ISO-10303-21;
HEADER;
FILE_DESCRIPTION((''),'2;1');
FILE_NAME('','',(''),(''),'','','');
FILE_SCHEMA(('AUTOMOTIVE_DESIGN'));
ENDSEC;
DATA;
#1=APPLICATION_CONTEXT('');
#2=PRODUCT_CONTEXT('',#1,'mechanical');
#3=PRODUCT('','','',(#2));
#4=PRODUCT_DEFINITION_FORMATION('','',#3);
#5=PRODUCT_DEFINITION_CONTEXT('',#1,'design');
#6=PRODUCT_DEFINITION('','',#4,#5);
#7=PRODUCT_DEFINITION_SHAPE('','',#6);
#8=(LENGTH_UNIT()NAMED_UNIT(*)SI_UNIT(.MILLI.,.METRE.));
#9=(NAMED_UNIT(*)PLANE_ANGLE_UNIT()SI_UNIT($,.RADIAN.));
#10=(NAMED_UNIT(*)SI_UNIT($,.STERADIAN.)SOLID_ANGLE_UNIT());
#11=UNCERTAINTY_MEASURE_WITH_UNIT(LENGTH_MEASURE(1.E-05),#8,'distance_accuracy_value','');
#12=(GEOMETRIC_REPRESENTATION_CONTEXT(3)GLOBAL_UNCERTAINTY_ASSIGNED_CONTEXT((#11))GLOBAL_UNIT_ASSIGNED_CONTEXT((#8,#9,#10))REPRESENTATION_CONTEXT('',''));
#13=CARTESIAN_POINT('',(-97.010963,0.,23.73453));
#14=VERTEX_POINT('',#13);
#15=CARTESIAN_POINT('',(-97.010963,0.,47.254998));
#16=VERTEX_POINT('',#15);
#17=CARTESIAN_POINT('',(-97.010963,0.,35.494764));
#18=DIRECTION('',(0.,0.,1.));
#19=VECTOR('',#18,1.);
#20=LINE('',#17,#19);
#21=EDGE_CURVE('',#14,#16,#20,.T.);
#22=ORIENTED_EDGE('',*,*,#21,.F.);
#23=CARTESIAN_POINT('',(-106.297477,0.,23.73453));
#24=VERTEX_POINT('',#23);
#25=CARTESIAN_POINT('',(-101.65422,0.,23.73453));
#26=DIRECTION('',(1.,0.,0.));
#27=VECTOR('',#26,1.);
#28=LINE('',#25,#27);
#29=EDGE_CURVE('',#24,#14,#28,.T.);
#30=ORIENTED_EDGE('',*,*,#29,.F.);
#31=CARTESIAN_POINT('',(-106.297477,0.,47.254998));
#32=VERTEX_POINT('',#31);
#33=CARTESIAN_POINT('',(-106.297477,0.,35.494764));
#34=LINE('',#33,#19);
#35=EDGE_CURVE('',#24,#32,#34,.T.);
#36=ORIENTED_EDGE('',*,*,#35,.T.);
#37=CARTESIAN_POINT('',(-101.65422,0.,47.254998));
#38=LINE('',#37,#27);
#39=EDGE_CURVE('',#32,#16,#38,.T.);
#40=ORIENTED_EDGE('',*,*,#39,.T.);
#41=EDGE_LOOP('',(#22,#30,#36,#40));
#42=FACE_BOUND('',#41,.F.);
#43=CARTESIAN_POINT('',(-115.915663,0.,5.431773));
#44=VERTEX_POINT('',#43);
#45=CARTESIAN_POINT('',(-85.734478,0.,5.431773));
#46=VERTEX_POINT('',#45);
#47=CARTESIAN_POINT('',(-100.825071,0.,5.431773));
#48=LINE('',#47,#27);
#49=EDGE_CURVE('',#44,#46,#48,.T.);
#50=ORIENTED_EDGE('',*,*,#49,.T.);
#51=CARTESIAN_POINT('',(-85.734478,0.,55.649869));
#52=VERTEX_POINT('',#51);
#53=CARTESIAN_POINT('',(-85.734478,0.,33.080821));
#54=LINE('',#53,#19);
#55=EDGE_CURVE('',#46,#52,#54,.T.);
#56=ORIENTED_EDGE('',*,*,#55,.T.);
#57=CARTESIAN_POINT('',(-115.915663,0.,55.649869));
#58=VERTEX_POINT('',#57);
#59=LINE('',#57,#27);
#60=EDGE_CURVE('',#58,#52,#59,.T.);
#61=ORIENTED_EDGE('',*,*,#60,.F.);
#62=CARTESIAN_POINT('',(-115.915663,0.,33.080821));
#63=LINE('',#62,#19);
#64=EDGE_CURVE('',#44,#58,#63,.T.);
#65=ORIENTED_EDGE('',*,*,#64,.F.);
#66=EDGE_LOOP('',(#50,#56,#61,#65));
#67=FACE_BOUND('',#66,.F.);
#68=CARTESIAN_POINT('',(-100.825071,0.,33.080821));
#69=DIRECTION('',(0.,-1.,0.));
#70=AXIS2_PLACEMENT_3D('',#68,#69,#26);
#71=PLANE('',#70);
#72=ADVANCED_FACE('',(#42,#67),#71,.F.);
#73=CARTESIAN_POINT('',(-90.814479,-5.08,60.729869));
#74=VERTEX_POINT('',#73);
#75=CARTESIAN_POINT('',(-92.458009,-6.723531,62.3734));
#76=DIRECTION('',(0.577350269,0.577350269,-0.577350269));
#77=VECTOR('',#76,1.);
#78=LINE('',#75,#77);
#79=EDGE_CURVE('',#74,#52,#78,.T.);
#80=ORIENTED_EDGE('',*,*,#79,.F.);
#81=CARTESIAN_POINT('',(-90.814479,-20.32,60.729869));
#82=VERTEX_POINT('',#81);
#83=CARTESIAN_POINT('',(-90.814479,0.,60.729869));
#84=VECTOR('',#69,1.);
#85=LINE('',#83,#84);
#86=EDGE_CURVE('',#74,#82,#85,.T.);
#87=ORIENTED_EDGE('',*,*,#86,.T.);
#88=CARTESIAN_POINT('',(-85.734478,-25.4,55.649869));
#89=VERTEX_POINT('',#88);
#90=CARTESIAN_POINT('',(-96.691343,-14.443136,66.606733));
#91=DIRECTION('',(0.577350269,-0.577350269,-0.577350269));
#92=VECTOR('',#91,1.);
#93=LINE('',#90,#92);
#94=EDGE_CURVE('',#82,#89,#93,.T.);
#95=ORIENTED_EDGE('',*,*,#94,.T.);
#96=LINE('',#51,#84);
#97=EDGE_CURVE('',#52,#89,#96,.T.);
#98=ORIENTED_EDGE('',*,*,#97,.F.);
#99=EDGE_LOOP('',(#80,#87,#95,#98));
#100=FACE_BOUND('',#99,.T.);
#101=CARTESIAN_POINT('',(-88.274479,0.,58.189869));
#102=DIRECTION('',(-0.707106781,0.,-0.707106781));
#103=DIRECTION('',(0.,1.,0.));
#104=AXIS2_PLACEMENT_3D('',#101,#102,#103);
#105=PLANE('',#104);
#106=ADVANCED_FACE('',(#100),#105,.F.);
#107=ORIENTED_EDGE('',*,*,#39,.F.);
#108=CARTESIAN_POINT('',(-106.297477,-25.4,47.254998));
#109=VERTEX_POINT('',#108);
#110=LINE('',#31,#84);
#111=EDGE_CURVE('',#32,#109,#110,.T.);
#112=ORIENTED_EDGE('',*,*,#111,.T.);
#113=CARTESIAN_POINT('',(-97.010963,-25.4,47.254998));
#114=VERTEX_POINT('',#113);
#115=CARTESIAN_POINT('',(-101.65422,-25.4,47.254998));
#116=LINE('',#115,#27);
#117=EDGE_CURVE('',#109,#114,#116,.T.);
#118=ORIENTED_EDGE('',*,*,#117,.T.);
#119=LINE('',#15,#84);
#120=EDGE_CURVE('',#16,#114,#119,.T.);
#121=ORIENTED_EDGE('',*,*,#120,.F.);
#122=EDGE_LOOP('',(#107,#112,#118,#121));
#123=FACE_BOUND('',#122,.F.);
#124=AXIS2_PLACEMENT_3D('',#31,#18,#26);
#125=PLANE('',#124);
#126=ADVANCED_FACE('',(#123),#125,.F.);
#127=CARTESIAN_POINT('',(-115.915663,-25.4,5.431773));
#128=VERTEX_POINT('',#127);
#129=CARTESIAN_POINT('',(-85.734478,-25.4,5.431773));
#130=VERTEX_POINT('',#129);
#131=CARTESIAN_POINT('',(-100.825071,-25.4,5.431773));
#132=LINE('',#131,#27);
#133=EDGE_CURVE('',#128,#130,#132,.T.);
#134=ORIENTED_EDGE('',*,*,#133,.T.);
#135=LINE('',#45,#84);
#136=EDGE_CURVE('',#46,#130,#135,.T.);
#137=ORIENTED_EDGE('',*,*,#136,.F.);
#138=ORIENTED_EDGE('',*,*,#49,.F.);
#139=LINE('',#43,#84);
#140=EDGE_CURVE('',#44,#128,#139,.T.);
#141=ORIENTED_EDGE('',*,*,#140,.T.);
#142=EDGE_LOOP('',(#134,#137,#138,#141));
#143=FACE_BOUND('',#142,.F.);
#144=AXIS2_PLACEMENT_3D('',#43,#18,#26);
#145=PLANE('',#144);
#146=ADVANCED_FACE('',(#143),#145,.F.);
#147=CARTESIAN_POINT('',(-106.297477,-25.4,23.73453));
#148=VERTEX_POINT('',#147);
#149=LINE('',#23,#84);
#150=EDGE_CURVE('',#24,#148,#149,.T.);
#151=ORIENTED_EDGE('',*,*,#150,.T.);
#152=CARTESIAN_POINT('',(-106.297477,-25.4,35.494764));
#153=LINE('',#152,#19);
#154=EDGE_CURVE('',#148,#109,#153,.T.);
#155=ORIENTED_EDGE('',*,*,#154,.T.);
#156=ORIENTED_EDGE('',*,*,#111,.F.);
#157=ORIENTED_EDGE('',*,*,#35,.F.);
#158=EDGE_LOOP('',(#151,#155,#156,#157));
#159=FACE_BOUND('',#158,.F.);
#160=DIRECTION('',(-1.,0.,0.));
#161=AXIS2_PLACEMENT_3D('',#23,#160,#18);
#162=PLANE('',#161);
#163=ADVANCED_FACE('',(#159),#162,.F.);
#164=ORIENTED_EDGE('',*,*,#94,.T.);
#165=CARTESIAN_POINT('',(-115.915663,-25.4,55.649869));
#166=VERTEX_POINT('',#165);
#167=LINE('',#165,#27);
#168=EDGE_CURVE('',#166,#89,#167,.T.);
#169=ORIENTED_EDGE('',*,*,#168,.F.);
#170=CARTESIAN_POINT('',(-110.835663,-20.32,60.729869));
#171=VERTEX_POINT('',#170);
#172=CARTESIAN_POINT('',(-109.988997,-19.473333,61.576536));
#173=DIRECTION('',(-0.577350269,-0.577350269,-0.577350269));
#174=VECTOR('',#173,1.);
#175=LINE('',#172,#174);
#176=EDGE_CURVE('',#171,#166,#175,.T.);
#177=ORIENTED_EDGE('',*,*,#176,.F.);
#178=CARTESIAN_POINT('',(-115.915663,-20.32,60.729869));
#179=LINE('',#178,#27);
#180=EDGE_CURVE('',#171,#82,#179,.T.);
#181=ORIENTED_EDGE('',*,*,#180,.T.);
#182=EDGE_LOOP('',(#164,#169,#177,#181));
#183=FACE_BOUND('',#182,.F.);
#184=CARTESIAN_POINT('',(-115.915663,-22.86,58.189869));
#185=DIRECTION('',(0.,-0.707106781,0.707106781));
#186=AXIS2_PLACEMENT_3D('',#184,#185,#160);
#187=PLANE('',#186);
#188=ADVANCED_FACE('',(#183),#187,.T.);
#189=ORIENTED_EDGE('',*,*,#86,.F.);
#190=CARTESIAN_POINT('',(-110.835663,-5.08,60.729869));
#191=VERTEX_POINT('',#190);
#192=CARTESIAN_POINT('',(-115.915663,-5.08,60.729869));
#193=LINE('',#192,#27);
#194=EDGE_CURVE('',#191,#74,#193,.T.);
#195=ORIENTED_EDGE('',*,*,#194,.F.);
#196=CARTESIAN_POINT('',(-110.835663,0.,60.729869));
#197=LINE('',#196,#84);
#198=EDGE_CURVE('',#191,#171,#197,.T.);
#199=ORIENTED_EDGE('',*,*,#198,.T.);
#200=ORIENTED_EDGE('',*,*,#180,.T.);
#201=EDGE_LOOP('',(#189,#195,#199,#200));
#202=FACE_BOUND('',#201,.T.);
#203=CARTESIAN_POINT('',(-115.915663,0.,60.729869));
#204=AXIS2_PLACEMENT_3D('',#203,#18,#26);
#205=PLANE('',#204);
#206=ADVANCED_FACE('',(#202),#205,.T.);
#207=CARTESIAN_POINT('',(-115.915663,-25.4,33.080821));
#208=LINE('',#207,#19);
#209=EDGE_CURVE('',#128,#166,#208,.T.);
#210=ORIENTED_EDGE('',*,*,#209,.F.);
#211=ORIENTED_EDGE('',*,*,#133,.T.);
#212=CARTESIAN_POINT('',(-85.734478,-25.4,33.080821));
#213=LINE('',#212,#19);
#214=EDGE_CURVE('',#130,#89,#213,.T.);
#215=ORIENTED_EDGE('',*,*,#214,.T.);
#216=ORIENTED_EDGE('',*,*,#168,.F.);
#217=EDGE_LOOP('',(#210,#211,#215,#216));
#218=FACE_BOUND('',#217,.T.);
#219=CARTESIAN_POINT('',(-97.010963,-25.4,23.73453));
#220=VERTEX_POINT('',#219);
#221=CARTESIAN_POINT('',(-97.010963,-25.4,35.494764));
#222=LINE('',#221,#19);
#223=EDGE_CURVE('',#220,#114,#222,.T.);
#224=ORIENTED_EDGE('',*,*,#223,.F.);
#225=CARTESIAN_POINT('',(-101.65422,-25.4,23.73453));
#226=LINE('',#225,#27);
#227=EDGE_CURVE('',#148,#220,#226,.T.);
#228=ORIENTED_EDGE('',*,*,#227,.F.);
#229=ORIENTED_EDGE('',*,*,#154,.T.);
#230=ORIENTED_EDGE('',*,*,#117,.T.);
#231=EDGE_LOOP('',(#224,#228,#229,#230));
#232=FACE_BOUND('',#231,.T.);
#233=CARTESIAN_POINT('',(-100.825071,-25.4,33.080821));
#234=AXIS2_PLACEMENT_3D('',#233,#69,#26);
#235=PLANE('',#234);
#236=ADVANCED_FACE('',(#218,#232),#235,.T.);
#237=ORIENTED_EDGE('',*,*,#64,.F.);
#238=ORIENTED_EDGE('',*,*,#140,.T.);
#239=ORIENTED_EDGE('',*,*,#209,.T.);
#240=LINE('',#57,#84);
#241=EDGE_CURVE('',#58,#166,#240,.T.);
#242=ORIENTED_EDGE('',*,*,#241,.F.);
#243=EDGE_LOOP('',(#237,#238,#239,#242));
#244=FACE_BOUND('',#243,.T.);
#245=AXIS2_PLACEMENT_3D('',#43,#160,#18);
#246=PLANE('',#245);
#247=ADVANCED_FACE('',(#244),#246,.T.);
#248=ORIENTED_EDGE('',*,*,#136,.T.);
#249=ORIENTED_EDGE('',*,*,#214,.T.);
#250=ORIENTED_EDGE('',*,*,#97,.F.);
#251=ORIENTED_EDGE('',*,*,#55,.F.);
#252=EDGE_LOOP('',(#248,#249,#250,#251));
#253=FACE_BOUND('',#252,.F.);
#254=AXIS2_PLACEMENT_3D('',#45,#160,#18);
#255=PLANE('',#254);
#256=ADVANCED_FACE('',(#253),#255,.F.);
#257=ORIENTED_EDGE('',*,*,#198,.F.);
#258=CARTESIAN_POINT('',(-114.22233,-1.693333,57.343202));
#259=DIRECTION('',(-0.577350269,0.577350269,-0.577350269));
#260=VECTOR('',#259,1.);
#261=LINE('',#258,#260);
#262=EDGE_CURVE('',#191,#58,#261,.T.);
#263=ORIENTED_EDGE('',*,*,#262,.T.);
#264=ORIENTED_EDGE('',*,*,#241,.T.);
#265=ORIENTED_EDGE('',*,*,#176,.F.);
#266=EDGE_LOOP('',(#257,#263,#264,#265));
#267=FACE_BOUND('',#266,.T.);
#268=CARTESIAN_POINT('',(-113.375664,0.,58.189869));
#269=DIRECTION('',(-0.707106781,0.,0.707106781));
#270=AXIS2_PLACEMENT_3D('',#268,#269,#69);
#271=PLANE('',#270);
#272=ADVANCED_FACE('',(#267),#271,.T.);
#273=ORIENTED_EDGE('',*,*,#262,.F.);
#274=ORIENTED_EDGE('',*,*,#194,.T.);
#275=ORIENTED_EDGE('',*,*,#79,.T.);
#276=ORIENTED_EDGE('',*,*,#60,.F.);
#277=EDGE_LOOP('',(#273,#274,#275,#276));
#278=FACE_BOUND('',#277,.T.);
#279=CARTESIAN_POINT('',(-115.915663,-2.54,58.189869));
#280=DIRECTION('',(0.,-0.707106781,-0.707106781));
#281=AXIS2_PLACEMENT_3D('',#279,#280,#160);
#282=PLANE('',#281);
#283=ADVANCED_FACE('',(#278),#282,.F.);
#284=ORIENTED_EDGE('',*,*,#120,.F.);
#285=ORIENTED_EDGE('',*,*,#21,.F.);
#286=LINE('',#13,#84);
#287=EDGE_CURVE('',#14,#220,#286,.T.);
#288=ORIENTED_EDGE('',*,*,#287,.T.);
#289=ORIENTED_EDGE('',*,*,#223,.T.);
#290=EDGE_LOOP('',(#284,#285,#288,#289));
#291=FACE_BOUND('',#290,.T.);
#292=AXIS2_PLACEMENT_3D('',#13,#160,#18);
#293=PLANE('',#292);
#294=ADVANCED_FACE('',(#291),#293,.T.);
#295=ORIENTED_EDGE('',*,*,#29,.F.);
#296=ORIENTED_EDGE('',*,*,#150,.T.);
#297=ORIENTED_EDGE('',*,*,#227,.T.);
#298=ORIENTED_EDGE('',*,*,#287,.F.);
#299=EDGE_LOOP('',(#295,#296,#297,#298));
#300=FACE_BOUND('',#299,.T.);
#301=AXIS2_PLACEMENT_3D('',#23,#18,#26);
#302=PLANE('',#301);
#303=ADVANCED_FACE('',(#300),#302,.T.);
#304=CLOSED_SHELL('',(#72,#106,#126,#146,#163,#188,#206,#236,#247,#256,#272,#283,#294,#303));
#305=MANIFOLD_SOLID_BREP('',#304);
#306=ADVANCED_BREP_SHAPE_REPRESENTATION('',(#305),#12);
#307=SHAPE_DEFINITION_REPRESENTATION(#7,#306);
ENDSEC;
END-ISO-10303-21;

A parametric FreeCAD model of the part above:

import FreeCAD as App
import Part
import Sketcher
from FreeCAD import Vector
Q = App.Units.Quantity


def edges_at(feature, points):
    """Names of the edges that pass closest to the given points."""
    edges = feature.Shape.Edges
    near = lambda p: min(range(len(edges)), key=lambda i: edges[i].distToShape(Part.Vertex(*p))[0])
    return sorted({f"Edge{near(p) + 1}" for p in points})


def add_polygon(sketch, points):
    """Adds a closed chain of lines whose ends are joined by coincident constraints."""
    first, n = sketch.GeometryCount, len(points)
    for a, b in zip(points, points[1:] + points[:1]):
        sketch.addGeometry(Part.LineSegment(App.Vector(*a, 0), App.Vector(*b, 0)), False)
    for i in range(n):
        sketch.addConstraint(Sketcher.Constraint("Coincident", first + i, 2, first + (i + 1) % n, 1))

doc = App.newDocument("Part")
body = doc.addObject("PartDesign::Body", "Body")

sketch1 = body.newObject("Sketcher::SketchObject", "Sketch")
sketch1.AttachmentSupport = (doc.getObject("XZ_Plane"), [""])
sketch1.MapMode = "FlatFace"
add_polygon(sketch1, [(-116, 61), (-116, 5), (-86, 5), (-86, 61)])
add_polygon(sketch1, [(-97, 24), (-106, 24), (-106, 47), (-97, 47)])
sketch1.addConstraint([
    Sketcher.Constraint("Vertical", 0),
    Sketcher.Constraint("Horizontal", 1),
    Sketcher.Constraint("Vertical", 2),
    Sketcher.Constraint("Horizontal", 3),
    Sketcher.Constraint("Horizontal", 4),
    Sketcher.Constraint("Vertical", 5),
    Sketcher.Constraint("Horizontal", 6),
    Sketcher.Constraint("Vertical", 7),
    Sketcher.Constraint("DistanceY", 5, 1, 5, 2, Q("23.520468 mm")),
    Sketcher.Constraint("DistanceX", 4, 2, 1, 2, Q("20.562999 mm")),
    Sketcher.Constraint("DistanceX", 3, 2, 6, 2, Q("18.904701 mm")),
    Sketcher.Constraint("DistanceX", 1, 1, 1, 2, Q("30.181185 mm")),
    Sketcher.Constraint("DistanceY", 0, 2, 0, 1, Q("55.298096 mm")),
    Sketcher.Constraint("DistanceX", 1, 2, -1, 1, Q("85.734478 mm")),
    Sketcher.Constraint("DistanceY", -1, 1, 2, 2, Q("60.729869 mm")),
    Sketcher.Constraint("DistanceY", -1, 1, 4, 2, Q("23.73453 mm")),
])
pad1 = body.newObject("PartDesign::Pad", "Pad")
pad1.Profile = sketch1
pad1.Length = Q("1 in")
doc.recompute()

chamfer = body.newObject("PartDesign::Chamfer", "Chamfer")
chamfer.Base = (pad1, edges_at(pad1, [
    (-100.825, -25.4, 60.73),
    (-100.825, 0, 60.73),
    (-85.734, -12.7, 60.73),
    (-115.916, -12.7, 60.73),
]))
chamfer.Size = Q("0.2 in")

doc.recompute()
